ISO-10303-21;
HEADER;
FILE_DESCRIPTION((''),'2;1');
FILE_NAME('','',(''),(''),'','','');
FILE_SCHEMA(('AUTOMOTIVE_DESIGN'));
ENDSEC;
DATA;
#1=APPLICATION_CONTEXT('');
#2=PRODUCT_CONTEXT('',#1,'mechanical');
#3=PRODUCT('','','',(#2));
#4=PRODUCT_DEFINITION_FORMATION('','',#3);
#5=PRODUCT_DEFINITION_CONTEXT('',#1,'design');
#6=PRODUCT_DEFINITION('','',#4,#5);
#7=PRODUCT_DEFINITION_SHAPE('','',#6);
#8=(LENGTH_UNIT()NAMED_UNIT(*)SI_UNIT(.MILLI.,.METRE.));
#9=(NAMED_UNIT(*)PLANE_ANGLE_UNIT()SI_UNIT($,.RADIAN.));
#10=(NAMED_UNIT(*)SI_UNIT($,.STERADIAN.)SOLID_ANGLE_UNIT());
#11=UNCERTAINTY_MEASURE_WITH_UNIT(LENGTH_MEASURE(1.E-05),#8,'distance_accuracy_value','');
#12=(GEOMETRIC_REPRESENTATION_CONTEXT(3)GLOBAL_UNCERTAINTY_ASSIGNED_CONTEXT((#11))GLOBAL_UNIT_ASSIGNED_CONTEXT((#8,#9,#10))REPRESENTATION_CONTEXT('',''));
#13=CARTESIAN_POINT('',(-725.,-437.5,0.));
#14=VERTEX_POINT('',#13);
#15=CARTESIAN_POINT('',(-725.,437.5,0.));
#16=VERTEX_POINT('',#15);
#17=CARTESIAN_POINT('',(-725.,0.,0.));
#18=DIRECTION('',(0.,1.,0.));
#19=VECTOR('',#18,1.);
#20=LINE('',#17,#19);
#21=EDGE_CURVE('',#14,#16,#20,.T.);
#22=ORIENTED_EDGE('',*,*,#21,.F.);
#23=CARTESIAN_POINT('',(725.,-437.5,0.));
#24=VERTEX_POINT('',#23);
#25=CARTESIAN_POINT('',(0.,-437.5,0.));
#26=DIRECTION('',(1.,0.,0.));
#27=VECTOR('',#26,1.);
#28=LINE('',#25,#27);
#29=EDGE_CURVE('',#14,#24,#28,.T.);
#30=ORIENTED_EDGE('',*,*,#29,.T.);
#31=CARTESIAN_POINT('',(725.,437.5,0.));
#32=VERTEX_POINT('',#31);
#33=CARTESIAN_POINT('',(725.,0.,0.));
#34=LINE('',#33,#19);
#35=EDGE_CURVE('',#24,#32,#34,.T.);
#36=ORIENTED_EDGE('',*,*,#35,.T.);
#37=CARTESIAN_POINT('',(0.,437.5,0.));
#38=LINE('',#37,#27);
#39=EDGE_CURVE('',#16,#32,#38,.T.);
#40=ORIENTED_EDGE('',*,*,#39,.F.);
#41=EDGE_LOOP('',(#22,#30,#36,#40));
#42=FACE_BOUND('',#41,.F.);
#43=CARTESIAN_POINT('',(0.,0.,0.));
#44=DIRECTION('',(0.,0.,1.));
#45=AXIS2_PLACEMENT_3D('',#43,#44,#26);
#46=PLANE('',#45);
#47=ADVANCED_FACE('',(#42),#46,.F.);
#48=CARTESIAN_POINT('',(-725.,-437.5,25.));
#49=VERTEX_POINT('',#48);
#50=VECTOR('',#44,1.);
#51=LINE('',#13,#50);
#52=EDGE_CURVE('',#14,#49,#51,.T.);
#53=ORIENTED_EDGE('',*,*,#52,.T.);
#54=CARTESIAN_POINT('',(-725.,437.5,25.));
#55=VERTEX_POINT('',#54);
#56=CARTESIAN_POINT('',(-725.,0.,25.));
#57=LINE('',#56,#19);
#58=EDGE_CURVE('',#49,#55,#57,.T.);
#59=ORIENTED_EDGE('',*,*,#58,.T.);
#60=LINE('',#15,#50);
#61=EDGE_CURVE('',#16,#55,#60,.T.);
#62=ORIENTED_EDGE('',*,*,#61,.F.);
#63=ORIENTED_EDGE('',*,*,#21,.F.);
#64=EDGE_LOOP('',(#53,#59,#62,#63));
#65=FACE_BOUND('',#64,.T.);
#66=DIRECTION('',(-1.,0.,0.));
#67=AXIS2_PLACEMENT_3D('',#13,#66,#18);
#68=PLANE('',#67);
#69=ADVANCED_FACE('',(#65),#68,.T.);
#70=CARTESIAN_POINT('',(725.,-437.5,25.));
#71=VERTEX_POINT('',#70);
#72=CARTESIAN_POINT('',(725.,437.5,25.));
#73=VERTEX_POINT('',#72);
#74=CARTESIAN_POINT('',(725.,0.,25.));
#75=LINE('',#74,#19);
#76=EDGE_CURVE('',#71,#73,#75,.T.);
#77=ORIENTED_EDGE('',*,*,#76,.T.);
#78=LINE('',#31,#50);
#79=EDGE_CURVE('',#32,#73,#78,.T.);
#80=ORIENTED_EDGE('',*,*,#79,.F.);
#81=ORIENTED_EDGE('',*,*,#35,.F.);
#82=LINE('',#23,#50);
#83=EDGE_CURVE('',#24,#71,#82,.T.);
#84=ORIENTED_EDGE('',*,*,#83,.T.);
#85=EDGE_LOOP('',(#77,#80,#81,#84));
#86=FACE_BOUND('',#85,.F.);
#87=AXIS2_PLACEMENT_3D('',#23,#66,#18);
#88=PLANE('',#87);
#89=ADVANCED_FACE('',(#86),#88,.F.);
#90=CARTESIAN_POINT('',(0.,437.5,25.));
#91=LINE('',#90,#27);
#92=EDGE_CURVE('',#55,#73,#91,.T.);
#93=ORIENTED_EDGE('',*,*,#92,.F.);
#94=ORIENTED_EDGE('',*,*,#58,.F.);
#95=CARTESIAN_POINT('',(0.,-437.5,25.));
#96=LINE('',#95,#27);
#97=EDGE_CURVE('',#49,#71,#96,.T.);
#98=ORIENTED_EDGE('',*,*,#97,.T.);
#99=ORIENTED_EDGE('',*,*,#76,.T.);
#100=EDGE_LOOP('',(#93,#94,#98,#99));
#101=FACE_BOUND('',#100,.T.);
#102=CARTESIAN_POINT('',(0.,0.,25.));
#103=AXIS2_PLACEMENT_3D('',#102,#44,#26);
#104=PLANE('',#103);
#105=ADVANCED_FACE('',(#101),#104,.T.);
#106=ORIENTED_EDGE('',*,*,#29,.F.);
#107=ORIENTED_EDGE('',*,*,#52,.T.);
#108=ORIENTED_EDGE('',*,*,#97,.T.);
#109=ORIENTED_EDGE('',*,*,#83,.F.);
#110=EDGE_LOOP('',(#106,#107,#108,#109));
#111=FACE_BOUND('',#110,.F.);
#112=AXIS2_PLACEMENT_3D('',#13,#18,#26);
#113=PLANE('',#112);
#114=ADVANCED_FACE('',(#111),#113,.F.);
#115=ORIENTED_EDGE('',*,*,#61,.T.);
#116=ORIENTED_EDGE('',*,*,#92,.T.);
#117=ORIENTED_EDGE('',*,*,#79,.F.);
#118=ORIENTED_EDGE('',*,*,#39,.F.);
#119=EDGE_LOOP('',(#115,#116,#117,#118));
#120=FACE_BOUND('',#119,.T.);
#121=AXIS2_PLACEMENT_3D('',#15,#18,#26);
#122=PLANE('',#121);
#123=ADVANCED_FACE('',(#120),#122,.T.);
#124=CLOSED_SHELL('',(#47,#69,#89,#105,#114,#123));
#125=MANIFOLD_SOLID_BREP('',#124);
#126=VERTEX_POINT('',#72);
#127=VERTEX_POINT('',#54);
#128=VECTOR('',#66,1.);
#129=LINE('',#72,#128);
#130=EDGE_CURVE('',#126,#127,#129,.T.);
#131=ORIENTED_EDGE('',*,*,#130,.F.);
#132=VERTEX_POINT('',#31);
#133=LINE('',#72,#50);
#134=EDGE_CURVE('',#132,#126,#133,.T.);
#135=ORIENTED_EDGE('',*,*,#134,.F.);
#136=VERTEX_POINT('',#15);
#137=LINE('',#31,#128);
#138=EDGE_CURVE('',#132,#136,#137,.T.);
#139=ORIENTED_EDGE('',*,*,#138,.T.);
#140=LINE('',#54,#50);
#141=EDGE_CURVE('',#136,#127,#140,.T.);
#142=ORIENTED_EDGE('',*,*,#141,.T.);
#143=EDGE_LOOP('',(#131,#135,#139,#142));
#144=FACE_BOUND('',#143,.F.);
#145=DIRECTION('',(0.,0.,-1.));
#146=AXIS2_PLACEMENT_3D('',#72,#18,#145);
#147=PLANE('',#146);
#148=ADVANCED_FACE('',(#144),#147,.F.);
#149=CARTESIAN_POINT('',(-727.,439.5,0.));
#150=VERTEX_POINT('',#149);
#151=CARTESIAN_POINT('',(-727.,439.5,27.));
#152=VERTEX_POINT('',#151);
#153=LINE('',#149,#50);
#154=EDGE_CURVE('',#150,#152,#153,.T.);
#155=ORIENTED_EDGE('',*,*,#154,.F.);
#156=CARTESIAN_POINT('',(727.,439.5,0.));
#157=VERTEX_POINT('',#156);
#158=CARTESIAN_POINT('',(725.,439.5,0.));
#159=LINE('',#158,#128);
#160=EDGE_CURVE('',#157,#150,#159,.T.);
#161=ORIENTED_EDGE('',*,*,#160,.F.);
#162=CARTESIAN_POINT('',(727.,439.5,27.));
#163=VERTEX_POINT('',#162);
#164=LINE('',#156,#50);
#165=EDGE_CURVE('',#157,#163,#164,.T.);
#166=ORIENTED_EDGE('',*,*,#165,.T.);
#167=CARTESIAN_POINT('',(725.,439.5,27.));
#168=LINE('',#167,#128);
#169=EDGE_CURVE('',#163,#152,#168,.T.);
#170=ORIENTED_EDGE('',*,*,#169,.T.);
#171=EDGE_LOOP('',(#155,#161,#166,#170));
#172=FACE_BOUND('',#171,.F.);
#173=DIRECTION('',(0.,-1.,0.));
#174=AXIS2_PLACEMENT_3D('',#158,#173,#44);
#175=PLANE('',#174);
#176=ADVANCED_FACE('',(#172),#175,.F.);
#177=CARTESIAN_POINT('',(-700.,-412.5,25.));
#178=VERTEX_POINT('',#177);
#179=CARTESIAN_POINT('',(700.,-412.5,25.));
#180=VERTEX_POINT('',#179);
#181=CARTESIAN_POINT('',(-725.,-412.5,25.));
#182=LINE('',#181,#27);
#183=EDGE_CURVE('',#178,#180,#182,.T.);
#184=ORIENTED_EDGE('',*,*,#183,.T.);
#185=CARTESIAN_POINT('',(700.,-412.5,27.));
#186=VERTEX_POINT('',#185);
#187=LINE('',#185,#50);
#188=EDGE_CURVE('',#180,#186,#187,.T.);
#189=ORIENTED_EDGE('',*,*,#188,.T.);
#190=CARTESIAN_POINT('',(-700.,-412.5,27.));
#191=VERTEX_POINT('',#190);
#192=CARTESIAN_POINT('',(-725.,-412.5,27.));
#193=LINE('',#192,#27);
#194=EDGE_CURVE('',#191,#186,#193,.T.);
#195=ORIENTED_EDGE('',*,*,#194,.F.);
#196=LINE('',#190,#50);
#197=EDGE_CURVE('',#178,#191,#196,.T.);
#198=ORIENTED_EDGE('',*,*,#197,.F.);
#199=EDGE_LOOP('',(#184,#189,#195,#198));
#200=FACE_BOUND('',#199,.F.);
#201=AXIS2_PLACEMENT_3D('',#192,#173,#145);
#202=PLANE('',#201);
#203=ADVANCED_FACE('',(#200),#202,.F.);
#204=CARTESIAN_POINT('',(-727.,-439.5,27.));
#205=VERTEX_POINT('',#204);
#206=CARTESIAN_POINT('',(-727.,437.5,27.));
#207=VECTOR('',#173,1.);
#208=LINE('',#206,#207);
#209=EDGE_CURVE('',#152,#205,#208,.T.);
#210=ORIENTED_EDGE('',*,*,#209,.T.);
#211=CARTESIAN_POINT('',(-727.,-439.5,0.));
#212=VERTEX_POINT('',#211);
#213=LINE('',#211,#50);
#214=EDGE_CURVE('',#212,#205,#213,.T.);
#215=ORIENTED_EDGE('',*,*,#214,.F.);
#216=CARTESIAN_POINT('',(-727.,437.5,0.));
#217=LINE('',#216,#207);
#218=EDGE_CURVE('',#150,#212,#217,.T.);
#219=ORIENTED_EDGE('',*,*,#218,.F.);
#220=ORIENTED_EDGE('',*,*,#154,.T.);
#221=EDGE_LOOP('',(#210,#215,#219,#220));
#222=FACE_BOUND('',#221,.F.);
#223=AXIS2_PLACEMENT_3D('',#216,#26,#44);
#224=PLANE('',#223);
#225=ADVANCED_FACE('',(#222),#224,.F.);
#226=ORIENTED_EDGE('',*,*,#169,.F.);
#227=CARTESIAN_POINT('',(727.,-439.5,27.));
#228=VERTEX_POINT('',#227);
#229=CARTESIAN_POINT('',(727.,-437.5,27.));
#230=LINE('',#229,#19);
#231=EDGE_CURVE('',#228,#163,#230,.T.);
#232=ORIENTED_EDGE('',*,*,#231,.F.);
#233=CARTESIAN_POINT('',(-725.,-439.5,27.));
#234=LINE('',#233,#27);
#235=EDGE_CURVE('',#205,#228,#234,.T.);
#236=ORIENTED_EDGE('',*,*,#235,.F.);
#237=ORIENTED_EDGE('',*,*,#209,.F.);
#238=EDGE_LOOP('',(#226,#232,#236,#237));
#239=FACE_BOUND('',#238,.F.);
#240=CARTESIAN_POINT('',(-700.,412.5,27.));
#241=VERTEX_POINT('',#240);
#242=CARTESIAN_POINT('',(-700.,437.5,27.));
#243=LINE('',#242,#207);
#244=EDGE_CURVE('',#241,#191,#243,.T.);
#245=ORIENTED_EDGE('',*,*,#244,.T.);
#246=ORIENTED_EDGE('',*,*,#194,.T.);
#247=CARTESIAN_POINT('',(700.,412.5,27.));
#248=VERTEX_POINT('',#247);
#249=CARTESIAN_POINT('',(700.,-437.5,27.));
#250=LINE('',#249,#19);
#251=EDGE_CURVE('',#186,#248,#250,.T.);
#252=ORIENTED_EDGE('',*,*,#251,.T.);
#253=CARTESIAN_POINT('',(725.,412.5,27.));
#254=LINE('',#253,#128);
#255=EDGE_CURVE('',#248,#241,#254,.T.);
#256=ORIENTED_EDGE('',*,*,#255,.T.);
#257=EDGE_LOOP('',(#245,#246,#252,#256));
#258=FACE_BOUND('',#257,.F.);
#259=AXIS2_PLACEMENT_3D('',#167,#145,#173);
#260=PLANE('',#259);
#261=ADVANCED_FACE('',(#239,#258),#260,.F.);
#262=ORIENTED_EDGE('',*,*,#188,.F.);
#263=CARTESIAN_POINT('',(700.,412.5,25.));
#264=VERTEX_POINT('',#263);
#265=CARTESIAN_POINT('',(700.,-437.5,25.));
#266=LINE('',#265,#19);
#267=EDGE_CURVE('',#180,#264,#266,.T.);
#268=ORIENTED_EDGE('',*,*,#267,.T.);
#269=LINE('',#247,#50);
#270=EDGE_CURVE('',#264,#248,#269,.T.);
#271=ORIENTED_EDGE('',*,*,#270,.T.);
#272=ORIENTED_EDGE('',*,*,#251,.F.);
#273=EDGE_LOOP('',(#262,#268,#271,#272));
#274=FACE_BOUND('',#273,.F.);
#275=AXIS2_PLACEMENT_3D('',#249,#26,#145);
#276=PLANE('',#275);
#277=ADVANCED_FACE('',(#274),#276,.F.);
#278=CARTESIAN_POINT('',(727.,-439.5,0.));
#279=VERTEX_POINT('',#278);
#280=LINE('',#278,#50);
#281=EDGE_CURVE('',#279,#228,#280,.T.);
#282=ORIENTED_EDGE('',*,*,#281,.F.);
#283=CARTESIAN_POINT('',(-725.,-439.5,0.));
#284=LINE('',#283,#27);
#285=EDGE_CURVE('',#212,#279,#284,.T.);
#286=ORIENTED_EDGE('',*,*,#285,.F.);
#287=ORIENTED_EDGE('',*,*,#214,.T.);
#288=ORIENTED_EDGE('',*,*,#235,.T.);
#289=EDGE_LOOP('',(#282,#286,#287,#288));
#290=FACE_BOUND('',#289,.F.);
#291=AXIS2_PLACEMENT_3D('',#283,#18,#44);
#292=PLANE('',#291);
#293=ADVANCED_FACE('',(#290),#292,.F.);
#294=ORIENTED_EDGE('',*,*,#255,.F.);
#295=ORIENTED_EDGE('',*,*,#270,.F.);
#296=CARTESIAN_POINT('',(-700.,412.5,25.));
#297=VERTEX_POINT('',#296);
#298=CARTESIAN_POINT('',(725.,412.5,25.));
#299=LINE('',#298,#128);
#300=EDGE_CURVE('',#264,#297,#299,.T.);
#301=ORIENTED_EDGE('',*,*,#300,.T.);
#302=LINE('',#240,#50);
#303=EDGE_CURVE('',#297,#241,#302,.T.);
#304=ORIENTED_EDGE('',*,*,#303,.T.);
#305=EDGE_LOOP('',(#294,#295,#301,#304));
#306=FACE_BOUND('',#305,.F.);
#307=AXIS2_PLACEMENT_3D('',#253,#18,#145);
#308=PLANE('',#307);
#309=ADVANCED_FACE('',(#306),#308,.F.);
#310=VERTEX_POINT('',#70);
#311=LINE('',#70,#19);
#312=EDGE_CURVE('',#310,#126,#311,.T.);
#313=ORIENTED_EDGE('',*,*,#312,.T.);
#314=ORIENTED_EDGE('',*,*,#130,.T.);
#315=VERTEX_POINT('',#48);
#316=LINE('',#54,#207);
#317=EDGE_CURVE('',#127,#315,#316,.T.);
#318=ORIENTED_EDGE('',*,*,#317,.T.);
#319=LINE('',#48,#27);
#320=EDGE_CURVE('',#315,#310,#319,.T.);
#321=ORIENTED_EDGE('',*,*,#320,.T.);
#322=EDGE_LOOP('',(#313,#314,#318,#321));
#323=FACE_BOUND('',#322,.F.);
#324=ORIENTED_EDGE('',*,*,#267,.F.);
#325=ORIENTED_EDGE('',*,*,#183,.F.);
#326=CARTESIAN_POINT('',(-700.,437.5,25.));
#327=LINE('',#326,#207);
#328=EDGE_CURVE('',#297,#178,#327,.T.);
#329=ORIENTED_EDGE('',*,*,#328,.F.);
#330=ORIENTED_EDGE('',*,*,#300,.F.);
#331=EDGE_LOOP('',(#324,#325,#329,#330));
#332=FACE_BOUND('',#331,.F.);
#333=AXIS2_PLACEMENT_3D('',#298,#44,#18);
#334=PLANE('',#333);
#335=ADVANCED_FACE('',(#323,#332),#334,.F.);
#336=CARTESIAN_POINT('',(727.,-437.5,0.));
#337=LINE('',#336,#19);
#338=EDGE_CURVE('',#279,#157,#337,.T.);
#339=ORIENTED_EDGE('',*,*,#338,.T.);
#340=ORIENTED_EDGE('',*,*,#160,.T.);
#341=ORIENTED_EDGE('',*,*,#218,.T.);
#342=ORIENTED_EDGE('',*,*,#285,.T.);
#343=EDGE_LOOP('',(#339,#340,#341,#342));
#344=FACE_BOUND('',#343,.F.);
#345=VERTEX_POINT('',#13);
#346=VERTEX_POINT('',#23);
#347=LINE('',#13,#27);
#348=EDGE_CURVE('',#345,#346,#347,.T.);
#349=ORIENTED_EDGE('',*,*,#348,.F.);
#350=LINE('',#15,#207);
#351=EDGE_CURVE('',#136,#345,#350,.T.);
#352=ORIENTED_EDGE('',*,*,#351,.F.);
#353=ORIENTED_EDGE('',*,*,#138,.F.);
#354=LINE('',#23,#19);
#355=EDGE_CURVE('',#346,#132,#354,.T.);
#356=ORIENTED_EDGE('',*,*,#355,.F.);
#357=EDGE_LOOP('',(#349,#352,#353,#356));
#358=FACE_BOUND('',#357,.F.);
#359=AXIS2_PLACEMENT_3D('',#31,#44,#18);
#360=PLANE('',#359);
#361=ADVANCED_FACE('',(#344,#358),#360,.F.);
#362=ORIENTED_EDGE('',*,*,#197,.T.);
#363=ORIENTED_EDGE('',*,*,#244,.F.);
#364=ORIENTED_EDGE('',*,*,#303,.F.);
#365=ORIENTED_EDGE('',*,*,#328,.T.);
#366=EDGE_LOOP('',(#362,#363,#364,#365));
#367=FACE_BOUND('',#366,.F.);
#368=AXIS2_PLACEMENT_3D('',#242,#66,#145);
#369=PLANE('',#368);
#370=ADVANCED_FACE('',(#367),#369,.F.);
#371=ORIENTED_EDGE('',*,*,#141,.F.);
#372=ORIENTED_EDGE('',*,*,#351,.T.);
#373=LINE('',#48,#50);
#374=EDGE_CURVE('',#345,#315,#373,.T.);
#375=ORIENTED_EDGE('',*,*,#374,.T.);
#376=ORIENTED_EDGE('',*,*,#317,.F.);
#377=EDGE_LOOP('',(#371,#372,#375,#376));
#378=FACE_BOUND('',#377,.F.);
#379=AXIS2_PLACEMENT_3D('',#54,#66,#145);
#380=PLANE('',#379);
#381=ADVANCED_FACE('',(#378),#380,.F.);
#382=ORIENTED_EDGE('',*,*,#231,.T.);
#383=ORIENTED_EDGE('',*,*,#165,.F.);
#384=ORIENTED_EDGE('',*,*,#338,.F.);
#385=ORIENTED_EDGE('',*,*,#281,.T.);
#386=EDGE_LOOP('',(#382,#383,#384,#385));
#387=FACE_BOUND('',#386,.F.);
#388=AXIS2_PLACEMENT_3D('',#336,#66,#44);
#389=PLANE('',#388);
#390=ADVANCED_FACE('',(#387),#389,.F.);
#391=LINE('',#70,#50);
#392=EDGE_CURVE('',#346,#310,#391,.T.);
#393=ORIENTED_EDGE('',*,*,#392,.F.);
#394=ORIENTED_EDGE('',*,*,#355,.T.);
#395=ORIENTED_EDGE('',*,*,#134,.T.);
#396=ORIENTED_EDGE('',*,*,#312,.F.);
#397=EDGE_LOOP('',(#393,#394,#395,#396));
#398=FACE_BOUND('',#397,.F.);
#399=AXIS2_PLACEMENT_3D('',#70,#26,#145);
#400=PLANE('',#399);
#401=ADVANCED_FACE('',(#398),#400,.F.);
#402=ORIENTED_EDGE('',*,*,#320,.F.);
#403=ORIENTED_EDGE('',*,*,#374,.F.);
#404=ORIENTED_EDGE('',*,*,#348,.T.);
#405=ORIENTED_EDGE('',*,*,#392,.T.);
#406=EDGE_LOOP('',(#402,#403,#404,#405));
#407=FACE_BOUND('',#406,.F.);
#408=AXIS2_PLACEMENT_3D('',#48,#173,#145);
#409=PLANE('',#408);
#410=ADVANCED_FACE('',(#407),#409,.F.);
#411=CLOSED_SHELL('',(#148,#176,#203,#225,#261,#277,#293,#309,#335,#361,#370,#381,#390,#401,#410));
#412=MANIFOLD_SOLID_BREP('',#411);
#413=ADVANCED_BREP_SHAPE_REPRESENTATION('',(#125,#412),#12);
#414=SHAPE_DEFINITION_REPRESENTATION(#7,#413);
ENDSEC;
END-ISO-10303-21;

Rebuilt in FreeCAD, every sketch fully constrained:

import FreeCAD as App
import Part
import Sketcher
Q = App.Units.Quantity

doc = App.newDocument("Part")
body = doc.addObject("PartDesign::Body", "Body")

# Sketch on XY plane
sketch1 = doc.addObject("Sketcher::SketchObject", "Sketch")
body.addObject(sketch1)
sketch1.AttachmentSupport = (doc.XY_Plane, [""])
sketch1.MapMode = "FlatFace"
sketch1.addGeometry(Part.LineSegment(App.Vector(-725, 438, 0), App.Vector(-725, -438, 0)), False)
sketch1.addGeometry(Part.LineSegment(App.Vector(-725, -438, 0), App.Vector(725, -438, 0)), False)
sketch1.addGeometry(Part.LineSegment(App.Vector(725, -438, 0), App.Vector(725, 438, 0)), False)
sketch1.addGeometry(Part.LineSegment(App.Vector(725, 438, 0), App.Vector(-725, 438, 0)), False)
sketch1.addConstraint(Sketcher.Constraint("Coincident", 0, 2, 1, 1))
sketch1.addConstraint(Sketcher.Constraint("Coincident", 1, 2, 2, 1))
sketch1.addConstraint(Sketcher.Constraint("Coincident", 2, 2, 3, 1))
sketch1.addConstraint(Sketcher.Constraint("Coincident", 3, 2, 0, 1))
sketch1.addConstraint(Sketcher.Constraint("Vertical", 0))
sketch1.addConstraint(Sketcher.Constraint("Horizontal", 1))
sketch1.addConstraint(Sketcher.Constraint("Vertical", 2))
sketch1.addConstraint(Sketcher.Constraint("Horizontal", 3))
sketch1.addConstraint(Sketcher.Constraint("Symmetric", 0, 2, 2, 2, -1, 1))
sketch1.addConstraint(Sketcher.Constraint("DistanceX", 1, 1, 1, 2, Q("1450 mm")))
sketch1.addConstraint(Sketcher.Constraint("DistanceY", 0, 2, 0, 1, Q("875 mm")))
pad1 = doc.addObject("PartDesign::Pad", "Pad")
body.addObject(pad1)
pad1.Profile = sketch1
pad1.Length = 25
body2 = doc.addObject("PartDesign::Body", "Body001")

# Sketch on YZ plane
sketch2 = doc.addObject("Sketcher::SketchObject", "Sketch001")
body2.addObject(sketch2)
sketch2.AttachmentSupport = (doc.getObject("YZ_Plane001"), [""])
sketch2.MapMode = "FlatFace"
sketch2.AttachmentOffset = App.Placement(App.Vector(0, 0, 725), App.Rotation())
sketch2.addGeometry(Part.LineSegment(App.Vector(412.5, 27, 0), App.Vector(412.5, 25, 0)), False)
sketch2.addGeometry(Part.LineSegment(App.Vector(412.5, 25, 0), App.Vector(437.5, 25, 0)), False)
sketch2.addGeometry(Part.LineSegment(App.Vector(437.5, 25, 0), App.Vector(437.5, 0, 0)), False)
sketch2.addGeometry(Part.LineSegment(App.Vector(437.5, 0, 0), App.Vector(439.5, 0, 0)), False)
sketch2.addGeometry(Part.LineSegment(App.Vector(439.5, 0, 0), App.Vector(439.5, 27, 0)), False)
sketch2.addGeometry(Part.LineSegment(App.Vector(439.5, 27, 0), App.Vector(412.5, 27, 0)), False)
sketch2.addConstraint(Sketcher.Constraint("Coincident", 0, 2, 1, 1))
sketch2.addConstraint(Sketcher.Constraint("Coincident", 1, 2, 2, 1))
sketch2.addConstraint(Sketcher.Constraint("Coincident", 2, 2, 3, 1))
sketch2.addConstraint(Sketcher.Constraint("Coincident", 3, 2, 4, 1))
sketch2.addConstraint(Sketcher.Constraint("Coincident", 4, 2, 5, 1))
sketch2.addConstraint(Sketcher.Constraint("Coincident", 5, 2, 0, 1))
sketch2.addConstraint(Sketcher.Constraint("Vertical", 0))
sketch2.addConstraint(Sketcher.Constraint("Horizontal", 1))
sketch2.addConstraint(Sketcher.Constraint("Vertical", 2))
sketch2.addConstraint(Sketcher.Constraint("Horizontal", 3))
sketch2.addConstraint(Sketcher.Constraint("Vertical", 4))
sketch2.addConstraint(Sketcher.Constraint("Horizontal", 5))
sketch2.addConstraint(Sketcher.Constraint("PointOnObject", 2, 2, -1))
sketch2.addConstraint(Sketcher.Constraint("Equal", 3, 0))
sketch2.addConstraint(Sketcher.Constraint("Equal", 1, 2))
sketch2.addConstraint(Sketcher.Constraint("DistanceX", 1, 1, 1, 2, Q("25 mm")))
sketch2.addConstraint(Sketcher.Constraint("DistanceX", 3, 1, 3, 2, Q("2 mm")))
sketch2.addConstraint(Sketcher.Constraint("DistanceX", -1, 1, 0, 2, Q("412.5 mm")))

# Sketch on XY plane
sketch3 = doc.addObject("Sketcher::SketchObject", "Sketch002")
body2.addObject(sketch3)
sketch3.AttachmentSupport = (doc.getObject("XY_Plane001"), [""])
sketch3.MapMode = "FlatFace"
sketch3.AttachmentOffset = App.Placement(App.Vector(0, 0, 25), App.Rotation())
sketch3.addGeometry(Part.LineSegment(App.Vector(725, 438, 0), App.Vector(-725, 438, 0)), False)
sketch3.addGeometry(Part.LineSegment(App.Vector(-725, 438, 0), App.Vector(-725, -438, 0)), False)
sketch3.addGeometry(Part.LineSegment(App.Vector(-725, -438, 0), App.Vector(725, -438, 0)), False)
sketch3.addGeometry(Part.LineSegment(App.Vector(725, -438, 0), App.Vector(725, 438, 0)), False)
sketch3.addConstraint(Sketcher.Constraint("Coincident", 0, 2, 1, 1))
sketch3.addConstraint(Sketcher.Constraint("Coincident", 1, 2, 2, 1))
sketch3.addConstraint(Sketcher.Constraint("Coincident", 2, 2, 3, 1))
sketch3.addConstraint(Sketcher.Constraint("Coincident", 3, 2, 0, 1))
sketch3.addConstraint(Sketcher.Constraint("Horizontal", 0))
sketch3.addConstraint(Sketcher.Constraint("Vertical", 1))
sketch3.addConstraint(Sketcher.Constraint("Horizontal", 2))
sketch3.addConstraint(Sketcher.Constraint("Vertical", 3))
sketch3.addConstraint(Sketcher.Constraint("Symmetric", 0, 2, 2, 2, -1, 1))
sketch3.addConstraint(Sketcher.Constraint("DistanceX", 0, 2, 0, 1, Q("1450 mm")))
sketch3.addConstraint(Sketcher.Constraint("DistanceY", 1, 2, 1, 1, Q("875 mm")))
doc.recompute()

additivepipe = doc.addObject("PartDesign::AdditivePipe", "AdditivePipe")
body2.addObject(additivepipe)
additivepipe.Profile = sketch2
additivepipe.Spine = (sketch3, ["Edge1", "Edge2", "Edge3", "Edge4"])
additivepipe.Transition = "Right corner"

doc.recompute()
